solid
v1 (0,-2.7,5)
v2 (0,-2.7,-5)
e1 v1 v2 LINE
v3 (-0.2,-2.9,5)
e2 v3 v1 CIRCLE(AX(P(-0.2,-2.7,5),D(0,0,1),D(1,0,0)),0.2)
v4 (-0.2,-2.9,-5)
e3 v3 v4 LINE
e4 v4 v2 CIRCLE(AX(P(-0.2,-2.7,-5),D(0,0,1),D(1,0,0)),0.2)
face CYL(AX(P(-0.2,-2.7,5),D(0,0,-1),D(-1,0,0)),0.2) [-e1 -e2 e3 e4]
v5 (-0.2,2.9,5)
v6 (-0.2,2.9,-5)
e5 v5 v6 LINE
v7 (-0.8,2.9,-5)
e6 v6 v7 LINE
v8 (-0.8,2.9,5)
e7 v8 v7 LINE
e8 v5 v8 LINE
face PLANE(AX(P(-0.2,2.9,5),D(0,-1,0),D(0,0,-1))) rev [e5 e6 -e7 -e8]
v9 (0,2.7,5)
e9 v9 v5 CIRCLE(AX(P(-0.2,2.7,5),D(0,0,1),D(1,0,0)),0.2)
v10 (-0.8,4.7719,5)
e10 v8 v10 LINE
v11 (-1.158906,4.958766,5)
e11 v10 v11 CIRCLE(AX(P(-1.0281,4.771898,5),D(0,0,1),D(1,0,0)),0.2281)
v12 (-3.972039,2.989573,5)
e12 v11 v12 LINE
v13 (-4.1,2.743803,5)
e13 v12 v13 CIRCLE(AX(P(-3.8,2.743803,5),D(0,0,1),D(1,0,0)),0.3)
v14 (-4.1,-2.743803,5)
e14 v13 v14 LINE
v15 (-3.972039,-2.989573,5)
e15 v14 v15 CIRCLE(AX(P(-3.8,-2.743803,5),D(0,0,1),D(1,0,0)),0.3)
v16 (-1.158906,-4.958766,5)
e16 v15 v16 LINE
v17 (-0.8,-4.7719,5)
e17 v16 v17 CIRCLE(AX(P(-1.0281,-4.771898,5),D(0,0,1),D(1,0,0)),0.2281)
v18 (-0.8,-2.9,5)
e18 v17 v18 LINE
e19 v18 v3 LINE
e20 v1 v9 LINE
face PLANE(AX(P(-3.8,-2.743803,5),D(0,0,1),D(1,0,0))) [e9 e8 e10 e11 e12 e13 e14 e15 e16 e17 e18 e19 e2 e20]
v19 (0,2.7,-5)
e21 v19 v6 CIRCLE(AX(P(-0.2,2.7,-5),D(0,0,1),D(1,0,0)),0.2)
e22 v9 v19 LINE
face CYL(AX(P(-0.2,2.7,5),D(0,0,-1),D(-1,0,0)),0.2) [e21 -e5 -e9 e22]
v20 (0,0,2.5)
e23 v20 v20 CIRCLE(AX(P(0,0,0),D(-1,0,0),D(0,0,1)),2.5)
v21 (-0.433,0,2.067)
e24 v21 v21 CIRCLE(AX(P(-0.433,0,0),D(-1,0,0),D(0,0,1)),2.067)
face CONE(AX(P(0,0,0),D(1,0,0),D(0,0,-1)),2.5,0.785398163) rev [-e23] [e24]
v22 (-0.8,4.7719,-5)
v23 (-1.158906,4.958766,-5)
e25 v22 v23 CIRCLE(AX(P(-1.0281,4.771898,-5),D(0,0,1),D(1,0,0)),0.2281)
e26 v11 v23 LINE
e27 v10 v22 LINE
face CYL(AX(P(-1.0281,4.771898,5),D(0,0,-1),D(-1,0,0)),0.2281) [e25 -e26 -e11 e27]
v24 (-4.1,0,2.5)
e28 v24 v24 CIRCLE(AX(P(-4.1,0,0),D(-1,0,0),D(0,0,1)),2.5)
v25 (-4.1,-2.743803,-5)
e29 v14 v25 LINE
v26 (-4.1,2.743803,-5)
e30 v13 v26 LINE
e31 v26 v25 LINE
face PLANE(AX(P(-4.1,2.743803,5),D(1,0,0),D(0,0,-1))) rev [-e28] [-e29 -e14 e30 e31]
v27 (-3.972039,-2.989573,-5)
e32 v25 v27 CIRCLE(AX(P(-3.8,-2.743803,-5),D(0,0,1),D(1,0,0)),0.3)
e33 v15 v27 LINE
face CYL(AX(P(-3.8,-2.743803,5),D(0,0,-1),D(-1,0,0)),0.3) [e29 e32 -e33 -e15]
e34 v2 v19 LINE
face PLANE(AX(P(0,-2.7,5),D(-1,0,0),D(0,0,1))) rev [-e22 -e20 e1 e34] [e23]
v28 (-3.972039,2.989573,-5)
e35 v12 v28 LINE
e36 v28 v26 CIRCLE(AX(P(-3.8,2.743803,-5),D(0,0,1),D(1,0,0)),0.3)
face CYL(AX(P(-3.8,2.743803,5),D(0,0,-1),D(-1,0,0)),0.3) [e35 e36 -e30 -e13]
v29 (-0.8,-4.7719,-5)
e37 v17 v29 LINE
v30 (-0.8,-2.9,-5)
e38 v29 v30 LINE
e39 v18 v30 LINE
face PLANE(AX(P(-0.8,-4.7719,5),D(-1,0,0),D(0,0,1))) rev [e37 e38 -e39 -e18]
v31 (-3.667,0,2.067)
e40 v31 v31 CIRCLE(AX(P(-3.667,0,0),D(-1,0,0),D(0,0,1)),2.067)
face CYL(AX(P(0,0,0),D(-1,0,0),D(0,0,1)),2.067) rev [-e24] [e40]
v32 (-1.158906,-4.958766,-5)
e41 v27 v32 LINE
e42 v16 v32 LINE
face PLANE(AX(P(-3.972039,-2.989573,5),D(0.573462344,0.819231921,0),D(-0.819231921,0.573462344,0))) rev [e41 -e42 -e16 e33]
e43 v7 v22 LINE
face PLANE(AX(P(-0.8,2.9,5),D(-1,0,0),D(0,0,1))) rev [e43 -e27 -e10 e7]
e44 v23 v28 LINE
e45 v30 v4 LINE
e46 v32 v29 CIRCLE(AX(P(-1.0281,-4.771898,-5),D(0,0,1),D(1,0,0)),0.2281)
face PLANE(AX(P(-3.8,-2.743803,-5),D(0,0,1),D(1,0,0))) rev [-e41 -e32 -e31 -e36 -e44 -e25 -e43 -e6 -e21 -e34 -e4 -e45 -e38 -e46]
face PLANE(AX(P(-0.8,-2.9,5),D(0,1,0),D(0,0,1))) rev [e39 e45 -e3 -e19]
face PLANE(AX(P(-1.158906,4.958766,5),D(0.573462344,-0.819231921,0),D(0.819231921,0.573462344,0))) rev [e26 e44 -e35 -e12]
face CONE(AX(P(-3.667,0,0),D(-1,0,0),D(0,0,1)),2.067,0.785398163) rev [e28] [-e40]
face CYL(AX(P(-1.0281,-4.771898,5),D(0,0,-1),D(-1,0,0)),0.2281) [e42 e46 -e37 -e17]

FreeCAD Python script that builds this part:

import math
import FreeCAD as App
import Part
import Sketcher
from FreeCAD import Vector


def add_polygon(sketch, points):
    """Adds a closed chain of lines whose ends are joined by coincident constraints."""
    first, n = sketch.GeometryCount, len(points)
    for a, b in zip(points, points[1:] + points[:1]):
        sketch.addGeometry(Part.LineSegment(App.Vector(*a, 0), App.Vector(*b, 0)), False)
    for i in range(n):
        sketch.addConstraint(Sketcher.Constraint("Coincident", first + i, 2, first + (i + 1) % n, 1))

doc = App.newDocument("Part")
params = doc.addObject("Spreadsheet::Sheet", "Params")
for row, (alias, value) in enumerate([
    ("sketch1_radius", "0.2 mm"),
    ("sketch1_radius2", "0.3 mm"),
    ("sketch1_width", "0.6 mm"),
    ("sketch1_height", "5.4 mm"),
    ("pad1_length", "5 mm"),
    ("pad1_length2", "5 mm"),
    ("sketch2_width", "4.1 mm"),
    ("sketch2_height", "2.5 mm"),
    ("groove_angle", "360 deg"),
], start=1):
    params.set(f"A{row}", alias)
    params.set(f"B{row}", "=" + value)
    params.setAlias(f"B{row}", alias)

body = doc.addObject("PartDesign::Body", "Body")

# Sketch on XY plane
sketch1 = doc.addObject("Sketcher::SketchObject", "Sketch")
body.addObject(sketch1)
sketch1.AttachmentSupport = (doc.XY_Plane, [""])
sketch1.MapMode = "FlatFace"
sketch1.addGeometry(Part.LineSegment(Vector(-3.97, -2.99, 0), Vector(-1.16, -4.96, 0)), False)
sketch1.addGeometry(Part.ArcOfCircle(Part.Circle(Vector(-1.03, -4.77, 0), Vector(0, 0, 1), 0.23), math.radians(-125), math.radians(0)), False)
sketch1.addGeometry(Part.LineSegment(Vector(-0.8, -4.77, 0), Vector(-0.8, -2.9, 0)), False)
sketch1.addGeometry(Part.LineSegment(Vector(-0.8, -2.9, 0), Vector(-0.2, -2.9, 0)), False)
sketch1.addGeometry(Part.ArcOfCircle(Part.Circle(Vector(-0.2, -2.7, 0), Vector(0, 0, 1), 0.2), math.radians(-90), math.radians(0)), False)
sketch1.addGeometry(Part.LineSegment(Vector(0, -2.7, 0), Vector(0, 2.7, 0)), False)
sketch1.addGeometry(Part.ArcOfCircle(Part.Circle(Vector(-0.2, 2.7, 0), Vector(0, 0, 1), 0.2), math.radians(0), math.radians(90)), False)
sketch1.addGeometry(Part.LineSegment(Vector(-0.2, 2.9, 0), Vector(-0.8, 2.9, 0)), False)
sketch1.addGeometry(Part.LineSegment(Vector(-0.8, 2.9, 0), Vector(-0.8, 4.77, 0)), False)
sketch1.addGeometry(Part.ArcOfCircle(Part.Circle(Vector(-1.03, 4.77, 0), Vector(0, 0, 1), 0.23), math.radians(0), math.radians(125)), False)
sketch1.addGeometry(Part.LineSegment(Vector(-1.16, 4.96, 0), Vector(-3.97, 2.99, 0)), False)
sketch1.addGeometry(Part.ArcOfCircle(Part.Circle(Vector(-3.8, 2.74, 0), Vector(0, 0, 1), 0.3), math.radians(125), math.radians(180)), False)
sketch1.addGeometry(Part.LineSegment(Vector(-4.1, 2.74, 0), Vector(-4.1, -2.74, 0)), False)
sketch1.addGeometry(Part.ArcOfCircle(Part.Circle(Vector(-3.8, -2.74, 0), Vector(0, 0, 1), 0.3), math.radians(180), math.radians(235)), False)
sketch1.addConstraint(Sketcher.Constraint("Coincident", 0, 2, 1, 1))
sketch1.addConstraint(Sketcher.Constraint("Coincident", 1, 2, 2, 1))
sketch1.addConstraint(Sketcher.Constraint("Coincident", 2, 2, 3, 1))
sketch1.addConstraint(Sketcher.Constraint("Tangent", 3, 2, 4, 1))
sketch1.addConstraint(Sketcher.Constraint("Tangent", 4, 2, 5, 1))
sketch1.addConstraint(Sketcher.Constraint("Tangent", 5, 2, 6, 1))
sketch1.addConstraint(Sketcher.Constraint("Tangent", 6, 2, 7, 1))
sketch1.addConstraint(Sketcher.Constraint("Coincident", 7, 2, 8, 1))
sketch1.addConstraint(Sketcher.Constraint("Coincident", 8, 2, 9, 1))
sketch1.addConstraint(Sketcher.Constraint("Coincident", 9, 2, 10, 1))
sketch1.addConstraint(Sketcher.Constraint("Tangent", 10, 2, 11, 1))
sketch1.addConstraint(Sketcher.Constraint("Tangent", 11, 2, 12, 1))
sketch1.addConstraint(Sketcher.Constraint("Tangent", 12, 2, 13, 1))
sketch1.addConstraint(Sketcher.Constraint("Tangent", 13, 2, 0, 1))
sketch1.addConstraint(Sketcher.Constraint("Vertical", 2))
sketch1.addConstraint(Sketcher.Constraint("Horizontal", 3))
sketch1.addConstraint(Sketcher.Constraint("Vertical", 5))
sketch1.addConstraint(Sketcher.Constraint("Horizontal", 7))
sketch1.addConstraint(Sketcher.Constraint("Vertical", 8))
sketch1.addConstraint(Sketcher.Constraint("Vertical", 12))
sketch1.addConstraint(Sketcher.Constraint("Equal", 4, 6))
sketch1.addConstraint(Sketcher.Constraint("Equal", 1, 9))
sketch1.addConstraint(Sketcher.Constraint("Equal", 11, 13))
sketch1.addConstraint(Sketcher.Constraint("Symmetric", 4, 2, 5, 2, -1, 1))
sketch1.addConstraint(Sketcher.Constraint("Symmetric", 1, 3, 9, 3, -1))
sketch1.addConstraint(Sketcher.Constraint("Horizontal", 9, 3, 8, 2))
sketch1.addConstraint(Sketcher.Constraint("Vertical", 0, 2, 9, 2))
sketch1.addConstraint(Sketcher.Constraint("Vertical", 10, 2, 13, 2))
sketch1.addConstraint(Sketcher.Constraint("Equal", 2, 8))
sketch1.addConstraint(Sketcher.Constraint("Radius", 4, 0.2))
sketch1.addConstraint(Sketcher.Constraint("Radius", 11, 0.3))
sketch1.addConstraint(Sketcher.Constraint("DistanceX", 3, 1, 3, 2, 0.6))
sketch1.addConstraint(Sketcher.Constraint("DistanceY", 5, 1, 5, 2, 5.4))
sketch1.addConstraint(Sketcher.Constraint("DistanceX", 13, 3, 1, 2, 3.0))
sketch1.addConstraint(Sketcher.Constraint("Radius", 1, 0.2281))
sketch1.addConstraint(Sketcher.Constraint("DistanceY", 2, 1, 2, 2, 1.8719))
sketch1.addConstraint(Sketcher.Constraint("DistanceY", 1, 3, 11, 3, 7.515702))
sketch1.addConstraint(Sketcher.Constraint("DistanceY", 0, 2, 11, 3, 7.702569))
sketch1.setExpression("Constraints[29]", "Params.sketch1_radius")
sketch1.setExpression("Constraints[30]", "Params.sketch1_radius2")
sketch1.setExpression("Constraints[31]", "Params.sketch1_width")
sketch1.setExpression("Constraints[32]", "Params.sketch1_height")
pad1 = doc.addObject("PartDesign::Pad", "Pad")
body.addObject(pad1)
pad1.Profile = sketch1
pad1.Type = "TwoLengths"
pad1.setExpression("Length", "Params.pad1_length")
pad1.setExpression("Length2", "Params.pad1_length2")

# Sketch on XY plane
sketch2 = doc.addObject("Sketcher::SketchObject", "Sketch001")
body.addObject(sketch2)
sketch2.AttachmentSupport = (doc.XY_Plane, [""])
sketch2.MapMode = "FlatFace"
add_polygon(sketch2, [(-4.1, 2.5), (-4.1, 0), (0, 0), (0, 2.5), (-0.4, 2.1), (-3.7, 2.1)])  # lines 0-5
sketch2.addConstraint(Sketcher.Constraint("Vertical", 0))
sketch2.addConstraint(Sketcher.Constraint("Horizontal", 1))
sketch2.addConstraint(Sketcher.Constraint("Vertical", 2))
sketch2.addConstraint(Sketcher.Constraint("Horizontal", 4))
sketch2.addConstraint(Sketcher.Constraint("Coincident", 1, 2, -1, 1))
sketch2.addConstraint(Sketcher.Constraint("Perpendicular", 3, 5))
sketch2.addConstraint(Sketcher.Constraint("Horizontal", 2, 2, 5, 2))
sketch2.addConstraint(Sketcher.Constraint("Equal", 3, 5))
sketch2.addConstraint(Sketcher.Constraint("DistanceX", 1, 1, 1, 2, 4.1))
sketch2.addConstraint(Sketcher.Constraint("DistanceY", 0, 2, 0, 1, 2.5))
sketch2.addConstraint(Sketcher.Constraint("DistanceX", 4, 2, 4, 1, 3.234))
sketch2.setExpression("Constraints[14]", "Params.sketch2_width")
sketch2.setExpression("Constraints[15]", "Params.sketch2_height")
groove = doc.addObject("PartDesign::Groove", "Groove")
body.addObject(groove)
groove.Profile = sketch2
groove.ReferenceAxis = (sketch2, ["H_Axis"])
groove.setExpression("Angle", "Params.groove_angle")

doc.recompute()
